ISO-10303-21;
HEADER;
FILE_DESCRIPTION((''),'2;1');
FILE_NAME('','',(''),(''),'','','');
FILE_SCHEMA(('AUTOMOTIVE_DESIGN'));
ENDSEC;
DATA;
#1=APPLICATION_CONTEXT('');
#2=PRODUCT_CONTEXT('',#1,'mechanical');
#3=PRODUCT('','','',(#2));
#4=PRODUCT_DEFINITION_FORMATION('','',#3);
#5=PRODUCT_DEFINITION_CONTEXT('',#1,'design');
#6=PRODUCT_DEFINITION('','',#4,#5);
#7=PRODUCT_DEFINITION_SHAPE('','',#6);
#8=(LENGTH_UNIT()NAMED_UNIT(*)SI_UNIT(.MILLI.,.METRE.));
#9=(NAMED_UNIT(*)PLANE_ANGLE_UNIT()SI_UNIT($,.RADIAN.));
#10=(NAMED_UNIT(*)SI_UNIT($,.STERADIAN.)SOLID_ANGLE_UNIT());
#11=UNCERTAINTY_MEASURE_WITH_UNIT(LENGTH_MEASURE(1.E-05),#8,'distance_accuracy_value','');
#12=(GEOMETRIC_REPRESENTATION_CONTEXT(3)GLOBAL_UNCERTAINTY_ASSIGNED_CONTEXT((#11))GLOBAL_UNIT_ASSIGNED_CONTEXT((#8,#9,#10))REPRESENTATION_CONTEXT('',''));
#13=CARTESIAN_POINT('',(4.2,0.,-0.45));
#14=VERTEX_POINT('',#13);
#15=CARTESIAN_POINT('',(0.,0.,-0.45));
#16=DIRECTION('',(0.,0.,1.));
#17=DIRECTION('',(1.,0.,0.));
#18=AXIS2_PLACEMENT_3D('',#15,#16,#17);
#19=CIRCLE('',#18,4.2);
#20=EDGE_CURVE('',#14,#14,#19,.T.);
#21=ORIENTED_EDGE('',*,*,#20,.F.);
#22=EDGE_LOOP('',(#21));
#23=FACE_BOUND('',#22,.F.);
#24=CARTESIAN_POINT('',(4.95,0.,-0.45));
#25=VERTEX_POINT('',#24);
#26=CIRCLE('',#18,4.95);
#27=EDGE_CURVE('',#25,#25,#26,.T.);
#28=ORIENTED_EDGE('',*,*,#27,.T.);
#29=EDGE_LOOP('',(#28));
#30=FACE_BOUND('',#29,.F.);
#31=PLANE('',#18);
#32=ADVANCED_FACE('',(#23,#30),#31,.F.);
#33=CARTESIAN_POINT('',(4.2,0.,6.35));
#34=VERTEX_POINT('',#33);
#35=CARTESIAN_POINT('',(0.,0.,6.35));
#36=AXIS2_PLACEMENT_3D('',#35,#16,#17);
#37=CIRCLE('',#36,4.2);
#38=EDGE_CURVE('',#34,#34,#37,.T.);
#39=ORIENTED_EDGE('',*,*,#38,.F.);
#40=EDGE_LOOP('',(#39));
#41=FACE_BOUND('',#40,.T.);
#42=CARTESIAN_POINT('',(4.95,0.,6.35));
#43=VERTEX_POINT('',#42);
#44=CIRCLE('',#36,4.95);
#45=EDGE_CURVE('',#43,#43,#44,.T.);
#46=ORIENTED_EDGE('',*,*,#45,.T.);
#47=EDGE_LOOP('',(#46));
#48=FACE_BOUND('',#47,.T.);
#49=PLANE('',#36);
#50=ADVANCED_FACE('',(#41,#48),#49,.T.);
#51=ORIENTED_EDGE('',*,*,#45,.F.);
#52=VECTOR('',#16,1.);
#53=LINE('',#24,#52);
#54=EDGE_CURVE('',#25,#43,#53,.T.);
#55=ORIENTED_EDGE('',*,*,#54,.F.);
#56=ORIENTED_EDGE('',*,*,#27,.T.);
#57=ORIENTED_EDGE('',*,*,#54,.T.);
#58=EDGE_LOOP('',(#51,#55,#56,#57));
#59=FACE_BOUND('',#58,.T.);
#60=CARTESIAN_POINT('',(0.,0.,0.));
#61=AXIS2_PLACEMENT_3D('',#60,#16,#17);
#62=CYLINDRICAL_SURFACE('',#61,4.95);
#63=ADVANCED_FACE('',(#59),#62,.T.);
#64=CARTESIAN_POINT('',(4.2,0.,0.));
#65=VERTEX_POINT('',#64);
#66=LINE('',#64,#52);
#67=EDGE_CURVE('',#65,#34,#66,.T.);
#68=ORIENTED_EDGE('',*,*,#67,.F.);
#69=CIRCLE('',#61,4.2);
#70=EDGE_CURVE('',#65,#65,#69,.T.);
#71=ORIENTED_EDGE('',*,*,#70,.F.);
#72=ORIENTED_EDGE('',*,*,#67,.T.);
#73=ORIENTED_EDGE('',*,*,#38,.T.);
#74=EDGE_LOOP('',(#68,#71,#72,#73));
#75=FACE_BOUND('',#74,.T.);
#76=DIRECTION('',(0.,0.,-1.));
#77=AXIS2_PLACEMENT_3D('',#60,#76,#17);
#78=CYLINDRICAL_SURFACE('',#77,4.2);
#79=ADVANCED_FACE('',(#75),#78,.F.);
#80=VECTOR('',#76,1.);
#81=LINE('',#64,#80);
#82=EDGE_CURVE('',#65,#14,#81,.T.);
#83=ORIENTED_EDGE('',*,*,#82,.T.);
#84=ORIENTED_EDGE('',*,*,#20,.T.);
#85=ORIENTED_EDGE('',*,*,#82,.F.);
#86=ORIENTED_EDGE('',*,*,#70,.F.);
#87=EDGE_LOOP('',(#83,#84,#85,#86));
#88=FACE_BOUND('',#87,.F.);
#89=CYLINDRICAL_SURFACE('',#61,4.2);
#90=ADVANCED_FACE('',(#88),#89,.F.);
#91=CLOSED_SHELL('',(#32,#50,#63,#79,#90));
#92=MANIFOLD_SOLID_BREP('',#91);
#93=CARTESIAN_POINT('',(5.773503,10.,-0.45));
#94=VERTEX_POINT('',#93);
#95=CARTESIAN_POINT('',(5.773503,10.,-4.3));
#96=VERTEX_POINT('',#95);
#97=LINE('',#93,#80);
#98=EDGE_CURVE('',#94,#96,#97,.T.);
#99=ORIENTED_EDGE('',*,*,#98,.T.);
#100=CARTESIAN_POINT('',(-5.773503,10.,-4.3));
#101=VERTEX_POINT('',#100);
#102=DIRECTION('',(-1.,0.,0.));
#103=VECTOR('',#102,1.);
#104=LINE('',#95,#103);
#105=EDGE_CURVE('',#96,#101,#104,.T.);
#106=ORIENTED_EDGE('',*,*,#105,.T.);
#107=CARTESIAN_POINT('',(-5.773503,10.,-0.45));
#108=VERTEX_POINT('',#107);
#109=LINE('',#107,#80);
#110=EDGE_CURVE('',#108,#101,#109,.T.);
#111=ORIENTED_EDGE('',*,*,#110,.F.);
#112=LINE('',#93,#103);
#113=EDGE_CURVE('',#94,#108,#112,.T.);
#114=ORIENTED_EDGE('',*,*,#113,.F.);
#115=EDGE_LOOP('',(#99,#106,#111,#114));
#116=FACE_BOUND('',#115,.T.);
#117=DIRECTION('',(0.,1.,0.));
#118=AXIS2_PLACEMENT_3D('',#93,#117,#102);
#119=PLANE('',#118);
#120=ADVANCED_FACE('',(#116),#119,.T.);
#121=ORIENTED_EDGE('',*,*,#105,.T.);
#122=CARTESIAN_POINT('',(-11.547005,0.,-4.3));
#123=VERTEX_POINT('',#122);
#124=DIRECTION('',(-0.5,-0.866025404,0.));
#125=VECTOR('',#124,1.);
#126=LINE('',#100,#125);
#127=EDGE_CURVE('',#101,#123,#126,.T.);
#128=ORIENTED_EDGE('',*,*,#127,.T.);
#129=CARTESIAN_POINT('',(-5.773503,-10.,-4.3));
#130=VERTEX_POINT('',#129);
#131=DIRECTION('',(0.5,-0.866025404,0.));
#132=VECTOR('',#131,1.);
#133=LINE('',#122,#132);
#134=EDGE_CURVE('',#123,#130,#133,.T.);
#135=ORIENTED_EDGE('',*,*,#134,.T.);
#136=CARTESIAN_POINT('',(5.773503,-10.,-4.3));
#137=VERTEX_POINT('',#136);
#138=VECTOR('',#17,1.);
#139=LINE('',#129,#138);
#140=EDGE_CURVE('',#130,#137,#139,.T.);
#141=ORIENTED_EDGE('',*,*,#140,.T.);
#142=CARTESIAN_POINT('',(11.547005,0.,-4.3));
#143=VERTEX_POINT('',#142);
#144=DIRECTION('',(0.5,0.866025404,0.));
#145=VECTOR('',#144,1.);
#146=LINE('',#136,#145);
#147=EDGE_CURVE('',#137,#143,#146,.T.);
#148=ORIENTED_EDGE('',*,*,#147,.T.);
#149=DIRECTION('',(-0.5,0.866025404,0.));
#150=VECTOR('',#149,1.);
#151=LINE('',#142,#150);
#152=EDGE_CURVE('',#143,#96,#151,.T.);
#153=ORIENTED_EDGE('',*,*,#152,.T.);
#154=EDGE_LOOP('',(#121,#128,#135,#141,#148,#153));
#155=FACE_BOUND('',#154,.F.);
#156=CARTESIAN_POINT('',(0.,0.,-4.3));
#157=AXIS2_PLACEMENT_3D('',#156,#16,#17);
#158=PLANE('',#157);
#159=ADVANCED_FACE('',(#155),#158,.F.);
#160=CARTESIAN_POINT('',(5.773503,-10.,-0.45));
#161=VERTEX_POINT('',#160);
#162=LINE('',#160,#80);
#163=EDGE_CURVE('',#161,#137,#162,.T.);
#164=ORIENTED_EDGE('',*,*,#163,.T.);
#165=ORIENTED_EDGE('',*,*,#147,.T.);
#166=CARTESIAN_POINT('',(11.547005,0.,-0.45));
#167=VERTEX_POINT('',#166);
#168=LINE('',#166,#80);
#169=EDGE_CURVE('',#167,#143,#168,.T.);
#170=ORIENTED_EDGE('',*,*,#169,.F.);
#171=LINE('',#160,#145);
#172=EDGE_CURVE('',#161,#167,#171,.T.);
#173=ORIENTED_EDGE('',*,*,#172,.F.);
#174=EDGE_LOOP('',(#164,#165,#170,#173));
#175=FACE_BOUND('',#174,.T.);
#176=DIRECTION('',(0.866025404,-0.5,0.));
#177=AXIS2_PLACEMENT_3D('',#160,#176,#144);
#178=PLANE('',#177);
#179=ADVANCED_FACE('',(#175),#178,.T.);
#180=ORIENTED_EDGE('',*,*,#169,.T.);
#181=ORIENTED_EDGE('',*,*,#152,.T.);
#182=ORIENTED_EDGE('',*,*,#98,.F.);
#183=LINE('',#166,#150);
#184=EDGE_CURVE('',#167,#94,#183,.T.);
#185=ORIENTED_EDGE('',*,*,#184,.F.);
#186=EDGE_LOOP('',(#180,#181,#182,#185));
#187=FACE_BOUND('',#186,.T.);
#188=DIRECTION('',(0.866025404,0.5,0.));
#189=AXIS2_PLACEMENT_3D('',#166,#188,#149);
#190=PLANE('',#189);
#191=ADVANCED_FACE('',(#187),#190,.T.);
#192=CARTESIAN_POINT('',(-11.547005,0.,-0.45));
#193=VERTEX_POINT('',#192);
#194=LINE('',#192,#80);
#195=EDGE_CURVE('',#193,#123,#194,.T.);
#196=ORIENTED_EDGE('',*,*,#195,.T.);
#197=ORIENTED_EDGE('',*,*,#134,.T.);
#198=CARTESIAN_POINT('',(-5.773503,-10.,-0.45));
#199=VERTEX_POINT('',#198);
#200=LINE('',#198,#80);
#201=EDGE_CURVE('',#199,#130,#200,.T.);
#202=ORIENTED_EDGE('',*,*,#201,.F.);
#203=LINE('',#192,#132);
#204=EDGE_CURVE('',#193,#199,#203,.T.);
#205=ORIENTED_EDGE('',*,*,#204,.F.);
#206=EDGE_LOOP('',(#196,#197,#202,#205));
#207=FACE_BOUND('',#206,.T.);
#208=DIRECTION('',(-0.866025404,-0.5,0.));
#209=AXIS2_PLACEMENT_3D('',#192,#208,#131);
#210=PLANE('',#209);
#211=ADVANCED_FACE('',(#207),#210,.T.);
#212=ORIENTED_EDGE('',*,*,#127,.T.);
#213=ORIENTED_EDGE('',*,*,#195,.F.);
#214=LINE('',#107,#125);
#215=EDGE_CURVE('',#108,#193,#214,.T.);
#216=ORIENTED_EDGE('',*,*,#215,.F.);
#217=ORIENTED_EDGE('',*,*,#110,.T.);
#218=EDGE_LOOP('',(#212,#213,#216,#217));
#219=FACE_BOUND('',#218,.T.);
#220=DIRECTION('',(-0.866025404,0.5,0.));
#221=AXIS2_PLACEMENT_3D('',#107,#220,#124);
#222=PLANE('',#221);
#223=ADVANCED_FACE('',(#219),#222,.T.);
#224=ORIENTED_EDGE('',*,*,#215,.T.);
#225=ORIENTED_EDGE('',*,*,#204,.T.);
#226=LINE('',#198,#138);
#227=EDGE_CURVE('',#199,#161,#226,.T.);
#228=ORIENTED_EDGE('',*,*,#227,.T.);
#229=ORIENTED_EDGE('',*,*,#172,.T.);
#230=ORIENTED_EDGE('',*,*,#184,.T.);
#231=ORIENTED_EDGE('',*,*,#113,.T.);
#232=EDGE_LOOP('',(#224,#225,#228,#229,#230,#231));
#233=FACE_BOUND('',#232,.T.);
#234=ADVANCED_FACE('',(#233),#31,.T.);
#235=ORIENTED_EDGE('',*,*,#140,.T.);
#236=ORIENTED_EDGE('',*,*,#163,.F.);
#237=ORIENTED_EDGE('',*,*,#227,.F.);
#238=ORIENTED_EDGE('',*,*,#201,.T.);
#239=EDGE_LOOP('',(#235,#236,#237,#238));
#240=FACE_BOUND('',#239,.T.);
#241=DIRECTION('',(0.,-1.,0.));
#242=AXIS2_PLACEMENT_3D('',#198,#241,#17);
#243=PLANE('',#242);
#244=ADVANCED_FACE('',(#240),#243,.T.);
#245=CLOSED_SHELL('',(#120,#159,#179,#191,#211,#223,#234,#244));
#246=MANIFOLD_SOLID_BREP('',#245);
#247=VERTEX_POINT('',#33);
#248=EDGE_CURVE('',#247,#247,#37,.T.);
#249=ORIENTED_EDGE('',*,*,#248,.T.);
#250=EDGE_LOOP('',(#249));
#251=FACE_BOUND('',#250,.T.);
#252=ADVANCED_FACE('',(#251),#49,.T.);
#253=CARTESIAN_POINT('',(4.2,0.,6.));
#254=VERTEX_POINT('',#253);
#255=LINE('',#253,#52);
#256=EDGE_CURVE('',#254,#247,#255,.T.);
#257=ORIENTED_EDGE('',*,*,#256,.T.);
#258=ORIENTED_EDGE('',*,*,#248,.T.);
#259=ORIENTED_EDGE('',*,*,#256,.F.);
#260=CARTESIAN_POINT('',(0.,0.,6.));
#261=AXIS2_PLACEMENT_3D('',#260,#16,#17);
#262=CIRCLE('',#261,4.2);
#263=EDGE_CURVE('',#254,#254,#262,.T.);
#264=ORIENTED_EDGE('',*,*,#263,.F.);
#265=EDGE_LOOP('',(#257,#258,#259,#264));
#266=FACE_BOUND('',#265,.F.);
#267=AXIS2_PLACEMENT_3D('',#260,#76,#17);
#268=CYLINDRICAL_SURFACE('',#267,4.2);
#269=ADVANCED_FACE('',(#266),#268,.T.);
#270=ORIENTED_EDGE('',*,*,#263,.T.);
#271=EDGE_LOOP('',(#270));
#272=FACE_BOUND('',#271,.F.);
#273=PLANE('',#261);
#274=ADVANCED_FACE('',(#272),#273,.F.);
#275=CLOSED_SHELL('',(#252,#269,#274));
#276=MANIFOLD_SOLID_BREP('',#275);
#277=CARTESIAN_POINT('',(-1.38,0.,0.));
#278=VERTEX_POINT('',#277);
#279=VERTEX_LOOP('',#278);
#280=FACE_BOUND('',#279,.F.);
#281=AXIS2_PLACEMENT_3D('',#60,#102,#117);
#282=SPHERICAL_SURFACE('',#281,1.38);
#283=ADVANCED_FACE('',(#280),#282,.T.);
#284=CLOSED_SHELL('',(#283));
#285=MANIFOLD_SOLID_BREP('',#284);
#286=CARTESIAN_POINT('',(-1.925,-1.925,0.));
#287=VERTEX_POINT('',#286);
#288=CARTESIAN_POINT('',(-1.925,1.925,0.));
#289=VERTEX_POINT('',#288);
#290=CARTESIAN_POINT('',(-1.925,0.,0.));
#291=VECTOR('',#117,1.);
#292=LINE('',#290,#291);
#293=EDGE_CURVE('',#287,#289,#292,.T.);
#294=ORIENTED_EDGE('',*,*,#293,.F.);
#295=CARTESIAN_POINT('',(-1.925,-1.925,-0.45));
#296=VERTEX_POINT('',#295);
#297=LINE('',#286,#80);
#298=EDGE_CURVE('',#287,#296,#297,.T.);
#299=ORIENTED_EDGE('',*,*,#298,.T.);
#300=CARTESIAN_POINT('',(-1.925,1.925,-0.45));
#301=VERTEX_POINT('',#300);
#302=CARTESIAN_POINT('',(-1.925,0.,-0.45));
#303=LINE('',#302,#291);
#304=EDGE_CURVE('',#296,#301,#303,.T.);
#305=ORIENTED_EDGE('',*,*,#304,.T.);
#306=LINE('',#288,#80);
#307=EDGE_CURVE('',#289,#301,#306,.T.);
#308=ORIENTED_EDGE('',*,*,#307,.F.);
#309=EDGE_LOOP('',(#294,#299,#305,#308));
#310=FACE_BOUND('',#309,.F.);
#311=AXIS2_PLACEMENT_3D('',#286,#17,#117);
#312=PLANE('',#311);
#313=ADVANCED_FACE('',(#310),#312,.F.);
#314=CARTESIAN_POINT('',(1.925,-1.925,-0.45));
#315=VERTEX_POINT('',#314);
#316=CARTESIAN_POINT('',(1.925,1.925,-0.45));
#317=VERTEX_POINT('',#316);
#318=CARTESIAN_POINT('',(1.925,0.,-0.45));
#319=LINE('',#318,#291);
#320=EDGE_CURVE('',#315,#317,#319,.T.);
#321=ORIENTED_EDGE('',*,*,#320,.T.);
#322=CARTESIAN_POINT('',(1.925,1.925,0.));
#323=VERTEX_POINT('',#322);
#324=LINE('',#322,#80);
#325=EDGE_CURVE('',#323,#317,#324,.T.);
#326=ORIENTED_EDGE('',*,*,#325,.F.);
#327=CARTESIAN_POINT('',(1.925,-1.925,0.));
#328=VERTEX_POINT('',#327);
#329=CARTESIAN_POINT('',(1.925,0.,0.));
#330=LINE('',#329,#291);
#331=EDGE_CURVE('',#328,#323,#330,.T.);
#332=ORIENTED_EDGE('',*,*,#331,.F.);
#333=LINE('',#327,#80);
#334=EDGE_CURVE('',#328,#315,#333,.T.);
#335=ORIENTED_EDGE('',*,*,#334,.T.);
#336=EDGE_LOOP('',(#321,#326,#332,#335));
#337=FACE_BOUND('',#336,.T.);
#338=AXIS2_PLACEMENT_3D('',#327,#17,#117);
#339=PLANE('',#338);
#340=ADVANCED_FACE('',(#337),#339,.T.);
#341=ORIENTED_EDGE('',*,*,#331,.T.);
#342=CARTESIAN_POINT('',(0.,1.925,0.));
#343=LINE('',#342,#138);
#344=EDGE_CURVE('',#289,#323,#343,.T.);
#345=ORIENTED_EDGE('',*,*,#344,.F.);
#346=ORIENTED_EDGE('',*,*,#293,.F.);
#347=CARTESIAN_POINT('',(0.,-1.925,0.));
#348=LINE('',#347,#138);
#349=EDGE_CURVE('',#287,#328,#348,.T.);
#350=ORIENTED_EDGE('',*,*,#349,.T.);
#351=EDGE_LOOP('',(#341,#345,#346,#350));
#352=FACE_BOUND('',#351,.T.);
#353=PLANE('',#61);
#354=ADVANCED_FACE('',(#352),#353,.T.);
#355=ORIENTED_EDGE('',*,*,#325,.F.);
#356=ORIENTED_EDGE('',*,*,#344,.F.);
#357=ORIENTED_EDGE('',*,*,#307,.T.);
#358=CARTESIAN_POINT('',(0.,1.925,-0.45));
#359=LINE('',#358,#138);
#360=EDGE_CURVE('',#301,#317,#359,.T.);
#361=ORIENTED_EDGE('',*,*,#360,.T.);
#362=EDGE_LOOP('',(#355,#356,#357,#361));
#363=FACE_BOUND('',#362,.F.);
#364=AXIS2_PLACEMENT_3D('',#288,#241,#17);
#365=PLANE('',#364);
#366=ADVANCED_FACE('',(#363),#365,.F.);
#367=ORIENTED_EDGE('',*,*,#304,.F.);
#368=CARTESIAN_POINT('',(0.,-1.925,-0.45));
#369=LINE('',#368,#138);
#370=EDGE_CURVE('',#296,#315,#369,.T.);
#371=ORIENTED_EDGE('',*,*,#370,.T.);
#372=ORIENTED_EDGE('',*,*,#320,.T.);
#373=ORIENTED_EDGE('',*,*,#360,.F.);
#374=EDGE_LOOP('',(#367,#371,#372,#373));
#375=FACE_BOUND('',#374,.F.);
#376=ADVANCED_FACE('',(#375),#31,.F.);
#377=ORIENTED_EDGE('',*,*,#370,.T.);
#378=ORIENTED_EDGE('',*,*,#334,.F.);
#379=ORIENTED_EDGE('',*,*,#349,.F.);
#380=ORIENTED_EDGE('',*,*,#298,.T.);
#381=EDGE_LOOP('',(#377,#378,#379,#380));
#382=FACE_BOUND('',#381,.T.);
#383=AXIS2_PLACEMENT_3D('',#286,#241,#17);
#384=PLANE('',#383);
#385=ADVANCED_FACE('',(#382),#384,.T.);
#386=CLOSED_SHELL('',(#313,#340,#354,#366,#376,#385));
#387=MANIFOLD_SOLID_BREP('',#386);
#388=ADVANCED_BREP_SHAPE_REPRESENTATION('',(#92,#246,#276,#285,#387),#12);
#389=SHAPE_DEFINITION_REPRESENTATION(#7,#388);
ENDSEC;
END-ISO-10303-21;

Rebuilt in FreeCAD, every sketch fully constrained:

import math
import FreeCAD as App
import Part
import Sketcher
Q = App.Units.Quantity


def add_polygon(sketch, points):
    """Adds a closed chain of lines whose ends are joined by coincident constraints."""
    first, n = sketch.GeometryCount, len(points)
    for a, b in zip(points, points[1:] + points[:1]):
        sketch.addGeometry(Part.LineSegment(App.Vector(*a, 0), App.Vector(*b, 0)), False)
    for i in range(n):
        sketch.addConstraint(Sketcher.Constraint("Coincident", first + i, 2, first + (i + 1) % n, 1))

doc = App.newDocument("Part")
body = doc.addObject("PartDesign::Body", "Body")

# Sketch on XY plane
sketch1 = body.newObject("Sketcher::SketchObject", "Sketch")
sketch1.AttachmentSupport = (doc.getObject("XY_Plane"), [""])
sketch1.MapMode = "FlatFace"
sketch1.AttachmentOffset = App.Placement(App.Vector(0, 0, -0.45), App.Rotation())
add_polygon(sketch1, [(-5.773503, -10), (5.773503, -10), (11.547005, 0), (5.773503, 10), (-5.773503, 10), (-11.547005, 0)])  # lines 0-5
sketch1.addConstraint(Sketcher.Constraint("Horizontal", 0))
sketch1.addConstraint(Sketcher.Constraint("Horizontal", 3))
sketch1.addConstraint(Sketcher.Constraint("Symmetric", 0, 2, 3, 2, -1, 1))
sketch1.addConstraint(Sketcher.Constraint("Symmetric", 1, 2, 4, 2, -1, 1))
sketch1.addConstraint(Sketcher.Constraint("PointOnObject", 1, 2, -1))
sketch1.addConstraint(Sketcher.Constraint("Parallel", 2, 5))
sketch1.addConstraint(Sketcher.Constraint("Vertical", 0, 2, 2, 2))
sketch1.addConstraint(Sketcher.Constraint("Angle", 1, Q("60 deg")))
sketch1.addConstraint(Sketcher.Constraint("DistanceY", 0, 2, -1, 1, Q("10 mm")))
sketch1.addConstraint(Sketcher.Constraint("DistanceX", 0, 1, 0, 2, Q("11.547005 mm")))
pad1 = body.newObject("PartDesign::Pad", "Pad")
pad1.Profile = sketch1
pad1.Length = 3.85
pad1.Reversed = True
body2 = doc.addObject("PartDesign::Body", "Body001")

# Sketch on XY plane
sketch2 = body2.newObject("Sketcher::SketchObject", "Sketch001")
sketch2.AttachmentSupport = (doc.getObject("XY_Plane001"), [""])
sketch2.MapMode = "FlatFace"
sketch2.addGeometry(Part.LineSegment(App.Vector(-1.38, 0, 0), App.Vector(1.38, 0, 0)), False)
sketch2.addGeometry(Part.ArcOfCircle(Part.Circle(App.Vector(0, 0, 0), App.Vector(0, 0, 1), 1.38), math.radians(0), math.radians(180)), False)
sketch2.addConstraint(Sketcher.Constraint("Coincident", 0, 1, 1, 2))
sketch2.addConstraint(Sketcher.Constraint("Coincident", 1, 1, 0, 2))
sketch2.addConstraint(Sketcher.Constraint("Horizontal", 0))
sketch2.addConstraint(Sketcher.Constraint("Coincident", 1, 3, -1, 1))
sketch2.addConstraint(Sketcher.Constraint("PointOnObject", 0, 1, -1))
sketch2.addConstraint(Sketcher.Constraint("Radius", 1, Q("1.38 mm")))
revolution = body2.newObject("PartDesign::Revolution", "Revolution")
revolution.Profile = sketch2
revolution.ReferenceAxis = (sketch2, ["H_Axis"])
revolution.Angle = 360
body3 = doc.addObject("PartDesign::Body", "Body002")

# Sketch on XY plane
sketch3 = body3.newObject("Sketcher::SketchObject", "Sketch002")
sketch3.AttachmentSupport = (doc.getObject("XY_Plane002"), [""])
sketch3.MapMode = "FlatFace"
add_polygon(sketch3, [(-1.925, 1.925), (-1.925, -1.925), (1.925, -1.925), (1.925, 1.925)])  # lines 0-3
sketch3.addConstraint(Sketcher.Constraint("Vertical", 0))
sketch3.addConstraint(Sketcher.Constraint("Horizontal", 1))
sketch3.addConstraint(Sketcher.Constraint("Vertical", 2))
sketch3.addConstraint(Sketcher.Constraint("Horizontal", 3))
sketch3.addConstraint(Sketcher.Constraint("Symmetric", 0, 2, 2, 2, -1, 1))
sketch3.addConstraint(Sketcher.Constraint("Equal", 3, 0))
sketch3.addConstraint(Sketcher.Constraint("DistanceX", 1, 1, 1, 2, Q("3.85 mm")))
pad2 = body3.newObject("PartDesign::Pad", "Pad001")
pad2.Profile = sketch3
pad2.Length = 0.45
pad2.Reversed = True
body4 = doc.addObject("PartDesign::Body", "Body003")

# Sketch on XY plane
sketch4 = body4.newObject("Sketcher::SketchObject", "Sketch003")
sketch4.AttachmentSupport = (doc.getObject("XY_Plane003"), [""])
sketch4.MapMode = "FlatFace"
sketch4.addGeometry(Part.Circle(App.Vector(0, 0, 0), App.Vector(0, 0, 1), 4.95), False)
sketch4.addGeometry(Part.Circle(App.Vector(0, 0, 0), App.Vector(0, 0, 1), 4.2), False)
sketch4.addConstraint(Sketcher.Constraint("Coincident", 0, 3, -1, 1))
sketch4.addConstraint(Sketcher.Constraint("Coincident", 1, 3, -1, 1))
sketch4.addConstraint(Sketcher.Constraint("Diameter", 0, Q("9.9 mm")))
sketch4.addConstraint(Sketcher.Constraint("Diameter", 1, Q("8.4 mm")))
pad3 = body4.newObject("PartDesign::Pad", "Pad002")
pad3.Profile = sketch4
pad3.Type = "TwoLengths"
pad3.Length = 6.35
pad3.Length2 = 0.45
body5 = doc.addObject("PartDesign::Body", "Body004")

# Sketch on XY plane
sketch5 = body5.newObject("Sketcher::SketchObject", "Sketch004")
sketch5.AttachmentSupport = (doc.getObject("XY_Plane004"), [""])
sketch5.MapMode = "FlatFace"
sketch5.AttachmentOffset = App.Placement(App.Vector(0, 0, 6), App.Rotation())
sketch5.addGeometry(Part.Circle(App.Vector(0, 0, 0), App.Vector(0, 0, 1), 4.2), False)
sketch5.addConstraint(Sketcher.Constraint("Coincident", 0, 3, -1, 1))
sketch5.addConstraint(Sketcher.Constraint("Diameter", 0, Q("8.4 mm")))
pad4 = body5.newObject("PartDesign::Pad", "Pad003")
pad4.Profile = sketch5
pad4.Length = 0.35

doc.recompute()
